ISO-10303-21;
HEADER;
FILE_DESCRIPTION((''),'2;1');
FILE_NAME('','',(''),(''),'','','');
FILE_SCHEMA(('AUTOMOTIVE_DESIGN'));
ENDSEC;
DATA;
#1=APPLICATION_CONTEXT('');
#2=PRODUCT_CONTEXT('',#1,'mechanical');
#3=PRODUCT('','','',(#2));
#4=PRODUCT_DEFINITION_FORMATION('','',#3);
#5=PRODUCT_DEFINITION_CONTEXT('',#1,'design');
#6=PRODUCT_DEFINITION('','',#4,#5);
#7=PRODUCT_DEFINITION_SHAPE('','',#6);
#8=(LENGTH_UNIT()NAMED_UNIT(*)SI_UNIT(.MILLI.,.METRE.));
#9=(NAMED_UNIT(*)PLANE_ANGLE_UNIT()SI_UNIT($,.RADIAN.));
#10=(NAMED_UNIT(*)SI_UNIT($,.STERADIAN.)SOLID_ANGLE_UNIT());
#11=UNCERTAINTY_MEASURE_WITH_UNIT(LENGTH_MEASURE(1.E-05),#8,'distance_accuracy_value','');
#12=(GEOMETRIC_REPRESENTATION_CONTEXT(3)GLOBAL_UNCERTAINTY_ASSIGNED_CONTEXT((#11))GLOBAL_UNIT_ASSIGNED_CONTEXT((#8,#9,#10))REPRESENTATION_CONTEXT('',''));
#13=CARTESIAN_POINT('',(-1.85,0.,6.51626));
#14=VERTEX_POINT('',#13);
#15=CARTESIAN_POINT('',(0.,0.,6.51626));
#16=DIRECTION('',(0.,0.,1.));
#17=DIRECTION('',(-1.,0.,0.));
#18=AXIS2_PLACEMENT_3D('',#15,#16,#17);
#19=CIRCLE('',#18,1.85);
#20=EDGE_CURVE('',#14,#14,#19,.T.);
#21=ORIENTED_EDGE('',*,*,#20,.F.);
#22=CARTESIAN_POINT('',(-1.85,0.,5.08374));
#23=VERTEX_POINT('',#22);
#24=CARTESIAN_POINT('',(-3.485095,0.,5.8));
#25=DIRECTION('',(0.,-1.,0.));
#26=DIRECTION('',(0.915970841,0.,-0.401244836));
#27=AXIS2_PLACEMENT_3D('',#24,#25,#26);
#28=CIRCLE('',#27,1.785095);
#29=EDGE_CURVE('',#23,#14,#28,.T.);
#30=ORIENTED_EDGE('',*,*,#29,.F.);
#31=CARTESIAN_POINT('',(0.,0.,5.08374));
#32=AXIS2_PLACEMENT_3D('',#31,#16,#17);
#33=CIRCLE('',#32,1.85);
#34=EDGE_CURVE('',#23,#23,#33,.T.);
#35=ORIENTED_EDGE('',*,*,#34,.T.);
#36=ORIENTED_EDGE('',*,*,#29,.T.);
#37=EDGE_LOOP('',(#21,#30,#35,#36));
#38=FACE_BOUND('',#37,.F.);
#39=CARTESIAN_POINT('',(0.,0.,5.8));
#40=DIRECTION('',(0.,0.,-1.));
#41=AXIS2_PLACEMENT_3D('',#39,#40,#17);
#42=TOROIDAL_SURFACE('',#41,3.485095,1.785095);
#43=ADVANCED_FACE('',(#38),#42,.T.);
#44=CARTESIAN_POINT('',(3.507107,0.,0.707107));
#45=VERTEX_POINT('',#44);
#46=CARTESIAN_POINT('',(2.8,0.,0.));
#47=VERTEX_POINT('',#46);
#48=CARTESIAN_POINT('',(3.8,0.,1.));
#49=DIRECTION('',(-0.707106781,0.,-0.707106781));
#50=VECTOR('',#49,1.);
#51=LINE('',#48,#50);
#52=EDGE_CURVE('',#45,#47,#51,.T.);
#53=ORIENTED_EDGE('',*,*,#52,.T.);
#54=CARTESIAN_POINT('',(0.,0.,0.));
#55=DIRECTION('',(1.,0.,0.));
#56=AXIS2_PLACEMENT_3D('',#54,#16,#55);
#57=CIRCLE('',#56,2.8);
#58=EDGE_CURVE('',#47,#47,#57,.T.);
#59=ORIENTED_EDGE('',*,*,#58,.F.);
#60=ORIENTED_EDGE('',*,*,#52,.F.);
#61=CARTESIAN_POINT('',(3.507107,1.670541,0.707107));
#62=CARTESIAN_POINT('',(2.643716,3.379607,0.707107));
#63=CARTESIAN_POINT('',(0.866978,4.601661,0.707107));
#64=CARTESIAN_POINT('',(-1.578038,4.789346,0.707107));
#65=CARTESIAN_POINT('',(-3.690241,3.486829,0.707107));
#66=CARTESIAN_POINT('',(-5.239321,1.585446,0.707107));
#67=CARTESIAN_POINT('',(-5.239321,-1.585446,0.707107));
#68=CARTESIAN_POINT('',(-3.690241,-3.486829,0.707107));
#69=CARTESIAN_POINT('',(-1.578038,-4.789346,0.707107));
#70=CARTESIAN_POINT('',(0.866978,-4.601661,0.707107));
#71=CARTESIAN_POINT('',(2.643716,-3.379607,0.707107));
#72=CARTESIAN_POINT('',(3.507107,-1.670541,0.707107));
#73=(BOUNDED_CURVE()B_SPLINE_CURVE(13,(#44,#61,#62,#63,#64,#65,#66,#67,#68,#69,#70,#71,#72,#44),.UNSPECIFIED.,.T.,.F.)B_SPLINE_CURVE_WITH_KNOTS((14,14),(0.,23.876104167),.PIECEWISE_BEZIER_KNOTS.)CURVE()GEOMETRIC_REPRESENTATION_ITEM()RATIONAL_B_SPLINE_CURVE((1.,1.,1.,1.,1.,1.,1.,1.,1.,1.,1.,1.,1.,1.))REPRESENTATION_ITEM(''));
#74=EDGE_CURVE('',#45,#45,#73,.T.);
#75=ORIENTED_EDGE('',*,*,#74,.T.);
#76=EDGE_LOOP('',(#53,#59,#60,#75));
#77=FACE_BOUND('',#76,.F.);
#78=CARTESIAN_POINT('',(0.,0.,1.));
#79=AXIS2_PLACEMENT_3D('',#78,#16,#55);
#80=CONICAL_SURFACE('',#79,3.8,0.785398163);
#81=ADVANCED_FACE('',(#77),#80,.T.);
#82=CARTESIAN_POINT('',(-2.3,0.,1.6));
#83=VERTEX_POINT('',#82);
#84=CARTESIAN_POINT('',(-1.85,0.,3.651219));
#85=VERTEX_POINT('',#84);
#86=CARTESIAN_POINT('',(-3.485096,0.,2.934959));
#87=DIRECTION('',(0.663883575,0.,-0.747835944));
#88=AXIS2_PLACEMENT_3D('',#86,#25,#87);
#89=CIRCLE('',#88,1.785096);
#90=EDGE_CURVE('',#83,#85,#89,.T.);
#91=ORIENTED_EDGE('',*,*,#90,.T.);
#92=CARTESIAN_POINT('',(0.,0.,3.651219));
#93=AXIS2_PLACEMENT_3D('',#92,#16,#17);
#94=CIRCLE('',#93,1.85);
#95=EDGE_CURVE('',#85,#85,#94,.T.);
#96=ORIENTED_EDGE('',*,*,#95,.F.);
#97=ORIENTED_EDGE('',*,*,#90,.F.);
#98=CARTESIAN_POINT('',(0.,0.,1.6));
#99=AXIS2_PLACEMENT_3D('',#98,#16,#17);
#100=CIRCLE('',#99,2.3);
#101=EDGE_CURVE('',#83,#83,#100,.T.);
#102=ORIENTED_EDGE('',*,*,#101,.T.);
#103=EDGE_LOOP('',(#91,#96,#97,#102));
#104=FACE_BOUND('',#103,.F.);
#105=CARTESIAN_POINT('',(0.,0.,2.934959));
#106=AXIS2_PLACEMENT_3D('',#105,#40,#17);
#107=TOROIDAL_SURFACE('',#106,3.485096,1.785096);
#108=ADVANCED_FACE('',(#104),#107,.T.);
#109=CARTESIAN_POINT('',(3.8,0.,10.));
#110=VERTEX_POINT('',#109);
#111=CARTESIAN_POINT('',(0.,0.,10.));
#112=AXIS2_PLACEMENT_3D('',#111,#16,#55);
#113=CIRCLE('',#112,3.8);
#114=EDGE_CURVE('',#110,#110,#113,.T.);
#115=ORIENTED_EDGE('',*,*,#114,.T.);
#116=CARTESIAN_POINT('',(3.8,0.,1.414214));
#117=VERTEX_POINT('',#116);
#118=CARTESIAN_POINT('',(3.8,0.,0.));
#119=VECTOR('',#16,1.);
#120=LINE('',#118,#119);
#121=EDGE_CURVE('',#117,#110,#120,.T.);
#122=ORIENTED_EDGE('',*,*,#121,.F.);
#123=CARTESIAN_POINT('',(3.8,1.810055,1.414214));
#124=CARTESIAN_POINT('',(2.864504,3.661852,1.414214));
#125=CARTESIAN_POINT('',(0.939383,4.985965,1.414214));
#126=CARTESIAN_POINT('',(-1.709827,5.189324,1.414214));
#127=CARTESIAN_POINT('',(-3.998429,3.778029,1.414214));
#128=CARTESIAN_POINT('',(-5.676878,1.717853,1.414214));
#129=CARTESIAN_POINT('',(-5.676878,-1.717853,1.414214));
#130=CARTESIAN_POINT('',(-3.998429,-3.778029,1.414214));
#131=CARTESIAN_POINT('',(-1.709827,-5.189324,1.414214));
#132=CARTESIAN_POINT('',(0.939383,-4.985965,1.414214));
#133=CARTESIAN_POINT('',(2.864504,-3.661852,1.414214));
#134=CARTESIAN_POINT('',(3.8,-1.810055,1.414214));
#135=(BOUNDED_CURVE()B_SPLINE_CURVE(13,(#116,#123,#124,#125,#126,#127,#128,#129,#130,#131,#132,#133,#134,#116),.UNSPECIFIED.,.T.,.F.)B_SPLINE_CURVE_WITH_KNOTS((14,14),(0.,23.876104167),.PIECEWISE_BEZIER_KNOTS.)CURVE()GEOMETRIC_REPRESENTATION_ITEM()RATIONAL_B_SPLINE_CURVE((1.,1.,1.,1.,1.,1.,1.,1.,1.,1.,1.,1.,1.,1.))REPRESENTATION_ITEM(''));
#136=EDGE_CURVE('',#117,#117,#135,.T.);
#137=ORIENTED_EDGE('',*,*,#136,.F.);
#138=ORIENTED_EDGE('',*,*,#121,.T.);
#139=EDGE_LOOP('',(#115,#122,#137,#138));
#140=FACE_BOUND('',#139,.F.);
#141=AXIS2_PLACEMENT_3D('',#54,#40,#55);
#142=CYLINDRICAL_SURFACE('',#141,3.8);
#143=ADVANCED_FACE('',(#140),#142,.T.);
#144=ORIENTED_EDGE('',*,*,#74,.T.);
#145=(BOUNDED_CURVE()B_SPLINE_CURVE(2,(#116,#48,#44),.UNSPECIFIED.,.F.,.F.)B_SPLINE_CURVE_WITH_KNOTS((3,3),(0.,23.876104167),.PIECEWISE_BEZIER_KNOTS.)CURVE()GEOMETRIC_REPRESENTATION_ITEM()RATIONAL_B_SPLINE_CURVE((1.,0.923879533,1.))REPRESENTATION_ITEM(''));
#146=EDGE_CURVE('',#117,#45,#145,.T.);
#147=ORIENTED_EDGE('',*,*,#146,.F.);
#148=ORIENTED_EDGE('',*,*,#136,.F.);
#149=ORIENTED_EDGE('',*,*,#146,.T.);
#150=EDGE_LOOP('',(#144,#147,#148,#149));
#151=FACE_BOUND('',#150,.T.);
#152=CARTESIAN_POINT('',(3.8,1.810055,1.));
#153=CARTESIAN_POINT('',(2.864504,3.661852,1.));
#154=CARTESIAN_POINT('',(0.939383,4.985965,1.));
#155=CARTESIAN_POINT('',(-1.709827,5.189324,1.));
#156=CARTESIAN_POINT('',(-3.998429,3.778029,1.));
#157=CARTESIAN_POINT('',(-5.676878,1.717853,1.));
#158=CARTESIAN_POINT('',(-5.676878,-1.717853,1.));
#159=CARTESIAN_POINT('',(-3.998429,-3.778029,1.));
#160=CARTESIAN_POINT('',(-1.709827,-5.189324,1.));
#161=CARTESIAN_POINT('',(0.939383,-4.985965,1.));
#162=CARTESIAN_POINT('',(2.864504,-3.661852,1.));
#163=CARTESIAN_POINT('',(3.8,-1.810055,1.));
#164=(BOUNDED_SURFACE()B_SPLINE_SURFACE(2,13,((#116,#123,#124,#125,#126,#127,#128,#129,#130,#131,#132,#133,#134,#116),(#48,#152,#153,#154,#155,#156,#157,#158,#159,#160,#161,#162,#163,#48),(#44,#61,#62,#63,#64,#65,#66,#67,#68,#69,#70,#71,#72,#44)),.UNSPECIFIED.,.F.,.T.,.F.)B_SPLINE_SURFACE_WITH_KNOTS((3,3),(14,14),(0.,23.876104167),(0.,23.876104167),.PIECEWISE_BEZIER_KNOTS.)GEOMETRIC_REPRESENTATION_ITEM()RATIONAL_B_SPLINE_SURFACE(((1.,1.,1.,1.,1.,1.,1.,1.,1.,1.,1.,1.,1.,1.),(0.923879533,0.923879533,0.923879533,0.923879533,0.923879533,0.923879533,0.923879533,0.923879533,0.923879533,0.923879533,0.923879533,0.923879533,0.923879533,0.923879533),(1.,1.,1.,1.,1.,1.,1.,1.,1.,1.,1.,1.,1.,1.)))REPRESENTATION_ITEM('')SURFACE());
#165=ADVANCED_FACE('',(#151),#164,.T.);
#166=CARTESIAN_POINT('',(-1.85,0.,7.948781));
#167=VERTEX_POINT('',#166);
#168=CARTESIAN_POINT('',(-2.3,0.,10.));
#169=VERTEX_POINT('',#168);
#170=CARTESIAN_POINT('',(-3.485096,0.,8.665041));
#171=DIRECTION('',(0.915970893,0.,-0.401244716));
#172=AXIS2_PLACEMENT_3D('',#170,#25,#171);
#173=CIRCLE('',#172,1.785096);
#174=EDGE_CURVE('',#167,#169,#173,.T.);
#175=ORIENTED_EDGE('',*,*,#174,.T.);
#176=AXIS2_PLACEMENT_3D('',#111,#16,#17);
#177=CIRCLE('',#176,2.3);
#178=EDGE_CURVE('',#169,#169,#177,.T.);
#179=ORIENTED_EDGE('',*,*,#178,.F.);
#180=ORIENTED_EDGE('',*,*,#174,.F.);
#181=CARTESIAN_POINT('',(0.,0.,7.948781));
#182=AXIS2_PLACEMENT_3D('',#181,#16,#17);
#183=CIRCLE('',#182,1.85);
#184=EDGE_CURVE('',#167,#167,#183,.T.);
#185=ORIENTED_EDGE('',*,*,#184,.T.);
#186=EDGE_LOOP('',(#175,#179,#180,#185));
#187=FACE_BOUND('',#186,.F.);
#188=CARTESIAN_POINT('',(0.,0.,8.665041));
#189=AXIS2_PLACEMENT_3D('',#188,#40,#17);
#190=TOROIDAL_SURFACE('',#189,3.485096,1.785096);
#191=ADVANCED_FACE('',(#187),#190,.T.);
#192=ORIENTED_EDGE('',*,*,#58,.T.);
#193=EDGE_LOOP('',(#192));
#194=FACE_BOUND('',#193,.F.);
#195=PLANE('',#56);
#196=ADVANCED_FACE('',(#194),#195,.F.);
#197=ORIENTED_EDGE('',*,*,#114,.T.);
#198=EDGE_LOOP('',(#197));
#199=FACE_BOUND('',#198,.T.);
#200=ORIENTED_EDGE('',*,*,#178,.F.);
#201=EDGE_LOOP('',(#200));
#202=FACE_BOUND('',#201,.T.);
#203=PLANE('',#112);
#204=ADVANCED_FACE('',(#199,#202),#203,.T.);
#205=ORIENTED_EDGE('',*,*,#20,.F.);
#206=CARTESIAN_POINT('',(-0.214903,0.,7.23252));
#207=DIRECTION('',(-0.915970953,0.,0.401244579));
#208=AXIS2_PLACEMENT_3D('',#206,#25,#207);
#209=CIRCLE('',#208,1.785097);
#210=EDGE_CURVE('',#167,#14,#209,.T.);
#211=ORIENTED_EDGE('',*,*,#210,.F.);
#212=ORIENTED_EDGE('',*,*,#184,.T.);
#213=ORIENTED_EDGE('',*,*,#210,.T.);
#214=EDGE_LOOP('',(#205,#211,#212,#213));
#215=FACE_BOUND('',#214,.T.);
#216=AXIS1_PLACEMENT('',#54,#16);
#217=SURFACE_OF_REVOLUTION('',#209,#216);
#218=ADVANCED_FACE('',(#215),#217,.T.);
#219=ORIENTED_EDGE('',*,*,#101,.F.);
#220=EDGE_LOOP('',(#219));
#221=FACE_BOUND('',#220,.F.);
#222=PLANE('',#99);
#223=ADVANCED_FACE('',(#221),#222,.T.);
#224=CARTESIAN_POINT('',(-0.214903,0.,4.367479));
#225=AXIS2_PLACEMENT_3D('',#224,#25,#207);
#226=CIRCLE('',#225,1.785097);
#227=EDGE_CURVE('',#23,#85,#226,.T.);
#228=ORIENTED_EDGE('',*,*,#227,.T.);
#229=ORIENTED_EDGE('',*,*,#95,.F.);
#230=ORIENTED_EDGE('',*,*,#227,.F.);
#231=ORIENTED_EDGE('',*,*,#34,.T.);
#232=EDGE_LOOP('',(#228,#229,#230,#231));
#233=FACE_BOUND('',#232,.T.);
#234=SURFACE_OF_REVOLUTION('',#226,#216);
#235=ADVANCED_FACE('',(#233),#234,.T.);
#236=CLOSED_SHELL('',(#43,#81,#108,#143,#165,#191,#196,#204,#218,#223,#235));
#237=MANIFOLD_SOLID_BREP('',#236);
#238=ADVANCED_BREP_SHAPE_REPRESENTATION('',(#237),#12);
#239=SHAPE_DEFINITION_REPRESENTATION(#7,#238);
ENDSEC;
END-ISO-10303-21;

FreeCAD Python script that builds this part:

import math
import FreeCAD as App
import Part
import Sketcher
from FreeCAD import Vector


def edges_at(feature, points):
    """Names of the edges that pass closest to the given points."""
    edges = feature.Shape.Edges
    near = lambda p: min(range(len(edges)), key=lambda i: edges[i].distToShape(Part.Vertex(*p))[0])
    return sorted({f"Edge{near(p) + 1}" for p in points})

doc = App.newDocument("Part")
body = doc.addObject("PartDesign::Body", "Body")

sketch1 = body.newObject("Sketcher::SketchObject", "Sketch")
sketch1.AttachmentSupport = (doc.getObject("XY_Plane"), [""])
sketch1.MapMode = "FlatFace"
sketch1.addGeometry(Part.Circle(Vector(0, 0, 0), Vector(0, 0, 1), 3.8), False)
sketch1.addConstraint(Sketcher.Constraint("Coincident", 0, 3, -1, 1))
sketch1.addConstraint(Sketcher.Constraint("Diameter", 0, 7.6))
pad1 = body.newObject("PartDesign::Pad", "Pad")
pad1.Profile = sketch1
pad1.Length = 10

sketch2 = body.newObject("Sketcher::SketchObject", "Sketch001")
sketch2.AttachmentSupport = (doc.getObject("XZ_Plane"), [""])
sketch2.MapMode = "FlatFace"
sketch2.addGeometry(Part.LineSegment(Vector(0, 10, 0), Vector(-2.3, 10, 0)), False)
sketch2.addGeometry(Part.ArcOfCircle(Part.Circle(Vector(-3.485096, 8.665041, 0), Vector(0, 0, 1), 1.785096), math.radians(-23.656015), math.radians(48.403267)), False)
sketch2.addGeometry(Part.ArcOfCircle(Part.Circle(Vector(-0.214903, 7.23252, 0), Vector(0, 0, 1), 1.785097), math.radians(156.343994), math.radians(203.656006)), False)
sketch2.addGeometry(Part.ArcOfCircle(Part.Circle(Vector(-3.485095, 5.8, 0), Vector(0, 0, 1), 1.785095), math.radians(-23.656022), math.radians(23.656022)), False)
sketch2.addGeometry(Part.ArcOfCircle(Part.Circle(Vector(-0.214903, 4.367479, 0), Vector(0, 0, 1), 1.785097), math.radians(156.343994), math.radians(203.656006)), False)
sketch2.addGeometry(Part.ArcOfCircle(Part.Circle(Vector(-3.485096, 2.934959, 0), Vector(0, 0, 1), 1.785096), math.radians(-48.403267), math.radians(23.656015)), False)
sketch2.addGeometry(Part.LineSegment(Vector(-2.3, 1.6, 0), Vector(0, 1.6, 0)), False)
sketch2.addGeometry(Part.LineSegment(Vector(0, 1.6, 0), Vector(0, 10, 0)), False)
sketch2.addConstraint(Sketcher.Constraint("Coincident", 0, 2, 1, 2))
sketch2.addConstraint(Sketcher.Constraint("Tangent", 1, 1, 2, 1))
sketch2.addConstraint(Sketcher.Constraint("Tangent", 2, 2, 3, 2))
sketch2.addConstraint(Sketcher.Constraint("Tangent", 3, 1, 4, 1))
sketch2.addConstraint(Sketcher.Constraint("Tangent", 4, 2, 5, 2))
sketch2.addConstraint(Sketcher.Constraint("Coincident", 5, 1, 6, 1))
sketch2.addConstraint(Sketcher.Constraint("Coincident", 6, 2, 7, 1))
sketch2.addConstraint(Sketcher.Constraint("Coincident", 7, 2, 0, 1))
sketch2.addConstraint(Sketcher.Constraint("Horizontal", 0))
sketch2.addConstraint(Sketcher.Constraint("Horizontal", 6))
sketch2.addConstraint(Sketcher.Constraint("Vertical", 7))
sketch2.addConstraint(Sketcher.Constraint("Equal", 1, 2))
sketch2.addConstraint(Sketcher.Constraint("Equal", 1, 3))
sketch2.addConstraint(Sketcher.Constraint("Equal", 2, 4))
sketch2.addConstraint(Sketcher.Constraint("Equal", 4, 5))
sketch2.addConstraint(Sketcher.Constraint("PointOnObject", 6, 2, -2))
sketch2.addConstraint(Sketcher.Constraint("Vertical", 1, 3, 3, 3))
sketch2.addConstraint(Sketcher.Constraint("Vertical", 2, 3, 4, 3))
sketch2.addConstraint(Sketcher.Constraint("Vertical", 3, 3, 5, 3))
sketch2.addConstraint(Sketcher.Constraint("Vertical", 0, 2, 5, 1))
sketch2.addConstraint(Sketcher.Constraint("DistanceX", 0, 2, 0, 1, 2.3))
sketch2.addConstraint(Sketcher.Constraint("DistanceY", 7, 1, 7, 2, 8.4))
sketch2.addConstraint(Sketcher.Constraint("DistanceY", -1, 1, 0, 2, 10.0))
sketch2.addConstraint(Sketcher.Constraint("DistanceX", 1, 1, -1, 1, 1.85))
sketch2.addConstraint(Sketcher.Constraint("Radius", 1, 1.785096))
groove = body.newObject("PartDesign::Groove", "Groove")
groove.Profile = sketch2
groove.ReferenceAxis = (sketch2, ["V_Axis"])
groove.Angle = 360
doc.recompute()

chamfer = body.newObject("PartDesign::Chamfer", "Chamfer")
chamfer.Base = (groove, edges_at(groove, [(-3.8, 0, 0)]))
chamfer.Size = 1
doc.recompute()

fillet = body.newObject("PartDesign::Fillet", "Fillet")
fillet.Base = (chamfer, edges_at(chamfer, [(-3.8, 0, 1)]))
fillet.Radius = 1

doc.recompute()
